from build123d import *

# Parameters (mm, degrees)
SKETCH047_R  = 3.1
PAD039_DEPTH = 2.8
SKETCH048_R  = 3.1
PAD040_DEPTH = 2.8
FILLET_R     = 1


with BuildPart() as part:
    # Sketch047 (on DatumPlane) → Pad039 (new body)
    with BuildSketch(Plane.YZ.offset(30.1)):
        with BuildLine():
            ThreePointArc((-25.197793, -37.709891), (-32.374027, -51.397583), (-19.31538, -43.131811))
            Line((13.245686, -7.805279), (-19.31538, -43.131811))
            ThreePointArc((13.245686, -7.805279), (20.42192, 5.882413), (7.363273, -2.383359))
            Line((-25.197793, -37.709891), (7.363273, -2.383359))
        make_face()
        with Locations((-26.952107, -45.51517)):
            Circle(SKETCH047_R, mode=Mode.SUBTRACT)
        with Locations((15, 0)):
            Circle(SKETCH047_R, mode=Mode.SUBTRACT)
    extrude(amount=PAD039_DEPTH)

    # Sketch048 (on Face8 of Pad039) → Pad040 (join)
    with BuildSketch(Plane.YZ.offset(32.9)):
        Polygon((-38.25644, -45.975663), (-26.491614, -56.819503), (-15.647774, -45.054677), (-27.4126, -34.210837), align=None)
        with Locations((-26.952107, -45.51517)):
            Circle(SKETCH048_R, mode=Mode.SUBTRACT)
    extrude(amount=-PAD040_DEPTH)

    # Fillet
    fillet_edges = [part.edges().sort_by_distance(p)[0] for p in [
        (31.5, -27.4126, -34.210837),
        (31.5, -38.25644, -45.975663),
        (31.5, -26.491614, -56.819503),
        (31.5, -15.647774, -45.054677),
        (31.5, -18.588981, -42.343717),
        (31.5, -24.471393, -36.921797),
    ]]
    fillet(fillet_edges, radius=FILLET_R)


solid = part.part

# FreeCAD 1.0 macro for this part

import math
import FreeCAD as App
import Part
import Sketcher
from FreeCAD import Vector
Q = App.Units.Quantity


def edges_at(feature, points):
    """Names of the edges that pass closest to the given points."""
    edges = feature.Shape.Edges
    near = lambda p: min(range(len(edges)), key=lambda i: edges[i].distToShape(Part.Vertex(*p))[0])
    return sorted({f"Edge{near(p) + 1}" for p in points})

doc = App.newDocument("Part")
params = doc.addObject("Spreadsheet::Sheet", "Params")
for row, (alias, value) in enumerate([
    ("sketch1_radius", "8 mm"),
    ("sketch1_diameter", "6.2 mm"),
    ("pad1_length", "2.8 mm"),
    ("sketch2_diameter", "6.2 mm"),
    ("sketch2_length", "16 mm"),
    ("pad2_length", "2.8 mm"),
    ("fillet_radius", "1 mm"),
], start=1):
    params.set(f"A{row}", alias)
    params.set(f"B{row}", "=" + value)
    params.setAlias(f"B{row}", alias)

body = doc.addObject("PartDesign::Body", "Body")

# Sketch on YZ plane
sketch1 = doc.addObject("Sketcher::SketchObject", "Sketch")
body.addObject(sketch1)
sketch1.AttachmentSupport = (doc.YZ_Plane, [""])
sketch1.MapMode = "FlatFace"
sketch1.AttachmentOffset = App.Placement(Vector(0, 0, 30.1), App.Rotation())
sketch1.addGeometry(Part.ArcOfCircle(Part.Circle(Vector(-26.952107, -45.51517, 0), Vector(0, 0, 1), 8), math.radians(77.33271), math.radians(377.332709)), False)
sketch1.addGeometry(Part.LineSegment(Vector(-19.31538, -43.131811, 0), Vector(13.245686, -7.805279, 0)), False)
sketch1.addGeometry(Part.ArcOfCircle(Part.Circle(Vector(15, 0, 0), Vector(0, 0, 1), 8), math.radians(-102.66729), math.radians(197.332709)), False)
sketch1.addGeometry(Part.LineSegment(Vector(7.363273, -2.383359, 0), Vector(-25.197793, -37.709891, 0)), False)
sketch1.addGeometry(Part.Circle(Vector(-26.952107, -45.51517, 0), Vector(0, 0, 1), 3.1), False)
sketch1.addGeometry(Part.Circle(Vector(15, 0, 0), Vector(0, 0, 1), 3.1), False)
sketch1.addConstraint(Sketcher.Constraint("Coincident", 0, 2, 1, 1))
sketch1.addConstraint(Sketcher.Constraint("Coincident", 1, 2, 2, 1))
sketch1.addConstraint(Sketcher.Constraint("Coincident", 2, 2, 3, 1))
sketch1.addConstraint(Sketcher.Constraint("Coincident", 3, 2, 0, 1))
sketch1.addConstraint(Sketcher.Constraint("Coincident", 4, 3, 0, 3))
sketch1.addConstraint(Sketcher.Constraint("Coincident", 5, 3, 2, 3))
sketch1.addConstraint(Sketcher.Constraint("Equal", 0, 2))
sketch1.addConstraint(Sketcher.Constraint("Equal", 4, 5))
sketch1.addConstraint(Sketcher.Constraint("PointOnObject", 2, 3, -1))
sketch1.addConstraint(Sketcher.Constraint("Parallel", 1, 3))
sketch1.addConstraint(Sketcher.Constraint("Equal", 1, 3))
sketch1.addConstraint(Sketcher.Constraint("Radius", 0, Q("8 mm")))
sketch1.addConstraint(Sketcher.Constraint("Diameter", 4, Q("6.2 mm")))
sketch1.addConstraint(Sketcher.Constraint("DistanceX", -1, 1, 2, 3, Q("15 mm")))
sketch1.addConstraint(Sketcher.Constraint("DistanceY", 0, 3, -1, 1, Q("45.51517 mm")))
sketch1.addConstraint(Sketcher.Constraint("DistanceX", 0, 2, -1, 1, Q("19.31538 mm")))
sketch1.addConstraint(Sketcher.Constraint("DistanceY", 0, 2, -1, 1, Q("43.131811 mm")))
sketch1.addConstraint(Sketcher.Constraint("DistanceY", 1, 2, -1, 1, Q("7.805279 mm")))
sketch1.setExpression("Constraints[11]", "Params.sketch1_radius")
sketch1.setExpression("Constraints[12]", "Params.sketch1_diameter")
pad1 = doc.addObject("PartDesign::Pad", "Pad")
body.addObject(pad1)
pad1.Profile = sketch1
pad1.setExpression("Length", "Params.pad1_length")

# Sketch on YZ plane
sketch2 = doc.addObject("Sketcher::SketchObject", "Sketch001")
body.addObject(sketch2)
sketch2.AttachmentSupport = (doc.YZ_Plane, [""])
sketch2.MapMode = "FlatFace"
sketch2.AttachmentOffset = App.Placement(Vector(0, 0, 32.9), App.Rotation())
sketch2.addGeometry(Part.LineSegment(Vector(-38.25644, -45.975663, 0), Vector(-26.491614, -56.819503, 0)), False)
sketch2.addGeometry(Part.LineSegment(Vector(-26.491614, -56.819503, 0), Vector(-15.647774, -45.054677, 0)), False)
sketch2.addGeometry(Part.LineSegment(Vector(-15.647774, -45.054677, 0), Vector(-27.4126, -34.210837, 0)), False)
sketch2.addGeometry(Part.LineSegment(Vector(-27.4126, -34.210837, 0), Vector(-38.25644, -45.975663, 0)), False)
sketch2.addGeometry(Part.Circle(Vector(-26.952107, -45.51517, 0), Vector(0, 0, 1), 3.1), False)
sketch2.addConstraint(Sketcher.Constraint("Coincident", 0, 2, 1, 1))
sketch2.addConstraint(Sketcher.Constraint("Coincident", 1, 2, 2, 1))
sketch2.addConstraint(Sketcher.Constraint("Coincident", 2, 2, 3, 1))
sketch2.addConstraint(Sketcher.Constraint("Coincident", 3, 2, 0, 1))
sketch2.addConstraint(Sketcher.Constraint("Perpendicular", 0, 1))
sketch2.addConstraint(Sketcher.Constraint("Perpendicular", 1, 2))
sketch2.addConstraint(Sketcher.Constraint("Perpendicular", 2, 3))
sketch2.addConstraint(Sketcher.Constraint("Equal", 0, 1))
sketch2.addConstraint(Sketcher.Constraint("Diameter", 4, Q("6.2 mm")))
sketch2.addConstraint(Sketcher.Constraint("Distance", 0, Q("16 mm")))
sketch2.addConstraint(Sketcher.Constraint("DistanceX", 2, 2, -1, 1, Q("27.4126 mm")))
sketch2.addConstraint(Sketcher.Constraint("DistanceY", 4, 3, -1, 1, Q("45.51517 mm")))
sketch2.addConstraint(Sketcher.Constraint("DistanceX", 3, 2, -1, 1, Q("38.25644 mm")))
sketch2.addConstraint(Sketcher.Constraint("DistanceX", 4, 3, -1, 1, Q("26.952107 mm")))
sketch2.addConstraint(Sketcher.Constraint("DistanceY", 0, 2, -1, 1, Q("56.819503 mm")))
sketch2.setExpression("Constraints[8]", "Params.sketch2_diameter")
sketch2.setExpression("Constraints[9]", "Params.sketch2_length")
pad2 = doc.addObject("PartDesign::Pad", "Pad001")
body.addObject(pad2)
pad2.Profile = sketch2
pad2.setExpression("Length", "Params.pad2_length")
pad2.Reversed = True
doc.recompute()

fillet = doc.addObject("PartDesign::Fillet", "Fillet")
body.addObject(fillet)
fillet.Base = (pad2, edges_at(pad2, [
    (31.5, -27.413, -34.211),
    (31.5, -38.256, -45.976),
    (31.5, -26.492, -56.82),
    (31.5, -15.648, -45.055),
    (31.5, -18.589, -42.344),
    (31.5, -24.471, -36.922),
]))
fillet.setExpression("Radius", "Params.fillet_radius")

doc.recompute()
